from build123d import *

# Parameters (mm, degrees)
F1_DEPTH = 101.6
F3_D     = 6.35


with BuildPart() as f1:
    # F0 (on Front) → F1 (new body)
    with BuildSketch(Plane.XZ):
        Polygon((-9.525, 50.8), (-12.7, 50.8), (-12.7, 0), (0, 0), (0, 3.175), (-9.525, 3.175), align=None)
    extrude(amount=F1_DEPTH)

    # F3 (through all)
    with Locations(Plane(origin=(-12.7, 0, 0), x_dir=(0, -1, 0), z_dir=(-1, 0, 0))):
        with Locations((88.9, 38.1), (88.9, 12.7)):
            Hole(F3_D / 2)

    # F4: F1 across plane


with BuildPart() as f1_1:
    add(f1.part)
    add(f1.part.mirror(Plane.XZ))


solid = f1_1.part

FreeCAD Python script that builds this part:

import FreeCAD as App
import Part
import Sketcher

V = App.Vector
Q = App.Units.Quantity


def add_polygon(sketch, points):
    """Adds a closed chain of lines whose ends are joined by coincident constraints."""
    first, n = sketch.GeometryCount, len(points)
    for a, b in zip(points, points[1:] + points[:1]):
        sketch.addGeometry(Part.LineSegment(App.Vector(*a, 0), App.Vector(*b, 0)), False)
    for i in range(n):
        sketch.addConstraint(Sketcher.Constraint("Coincident", first + i, 2, first + (i + 1) % n, 1))

doc = App.newDocument("Part")
body = doc.addObject("PartDesign::Body", "Body")

# Sketch on XZ plane
sketch1 = body.newObject("Sketcher::SketchObject", "Sketch")
sketch1.AttachmentSupport = (doc.getObject("XZ_Plane"), [""])
sketch1.MapMode = "FlatFace"
add_polygon(sketch1, [(-9.5, 50.8), (-12.7, 50.8), (-12.7, 0), (0, 0), (0, 3.2), (-9.5, 3.2)])  # lines 0-5
sketch1.addConstraint(Sketcher.Constraint("Horizontal", 0))
sketch1.addConstraint(Sketcher.Constraint("Vertical", 1))
sketch1.addConstraint(Sketcher.Constraint("Horizontal", 2))
sketch1.addConstraint(Sketcher.Constraint("Vertical", 3))
sketch1.addConstraint(Sketcher.Constraint("Horizontal", 4))
sketch1.addConstraint(Sketcher.Constraint("Vertical", 5))
sketch1.addConstraint(Sketcher.Constraint("Coincident", 2, 2, -1, 1))
sketch1.addConstraint(Sketcher.Constraint("Equal", 0, 3))
sketch1.addConstraint(Sketcher.Constraint("DistanceY", 1, 2, 1, 1, Q("2 in")))
sketch1.addConstraint(Sketcher.Constraint("DistanceX", 2, 1, 2, 2, Q("0.5 in")))
sketch1.addConstraint(Sketcher.Constraint("DistanceX", 0, 2, 0, 1, Q("0.125 in")))
pad1 = body.newObject("PartDesign::Pad", "Pad")
pad1.Profile = sketch1
pad1.Length = Q("4 in")

# Sketch on YZ plane
sketch2 = body.newObject("Sketcher::SketchObject", "Sketch001")
sketch2.AttachmentSupport = (doc.getObject("YZ_Plane"), [""])
sketch2.MapMode = "FlatFace"
sketch2.AttachmentOffset = App.Placement(V(0, 0, -0.5 * 25.4), App.Rotation())
sketch2.addGeometry(Part.Circle(V(-88.9, 38.1, 0), V(0, 0, 1), 3.2), False)
sketch2.addGeometry(Part.Circle(V(-88.9, 12.7, 0), V(0, 0, 1), 3.2), False)
sketch2.addConstraint(Sketcher.Constraint("Equal", 0, 1))
sketch2.addConstraint(Sketcher.Constraint("Vertical", 0, 3, 1, 3))
sketch2.addConstraint(Sketcher.Constraint("Diameter", 0, Q("0.25 in")))
sketch2.addConstraint(Sketcher.Constraint("DistanceY", 1, 3, 0, 3, Q("1 in")))
sketch2.addConstraint(Sketcher.Constraint("DistanceX", 0, 3, -1, 1, Q("3.5 in")))
sketch2.addConstraint(Sketcher.Constraint("DistanceY", -1, 1, 0, 3, Q("1.5 in")))
doc.recompute()
hole = body.newObject("PartDesign::Hole", "Hole")
hole.Profile = sketch2
hole.ThreadType = "None"
hole.Diameter = Q("0.25 in")
hole.DepthType = "ThroughAll"
hole.Reversed = True
body2 = doc.addObject("PartDesign::Body", "Body001")
doc.recompute()

body2.BaseFeature = body
doc.recompute()

mirroring = doc.addObject("Part::Mirroring", "Mirroring")
mirroring.Source = body
mirroring.Base = V(0, 0, 0)
mirroring.Normal = V(0, -1, 0)
body3 = doc.addObject("PartDesign::Body", "Body002")
body3.BaseFeature = mirroring
boolean = body2.newObject("PartDesign::Boolean", "Boolean")
boolean.Type = "Fuse"
boolean.addObjects([body3])
doc.recompute()
mirroring.Visibility = False

doc.recompute()
